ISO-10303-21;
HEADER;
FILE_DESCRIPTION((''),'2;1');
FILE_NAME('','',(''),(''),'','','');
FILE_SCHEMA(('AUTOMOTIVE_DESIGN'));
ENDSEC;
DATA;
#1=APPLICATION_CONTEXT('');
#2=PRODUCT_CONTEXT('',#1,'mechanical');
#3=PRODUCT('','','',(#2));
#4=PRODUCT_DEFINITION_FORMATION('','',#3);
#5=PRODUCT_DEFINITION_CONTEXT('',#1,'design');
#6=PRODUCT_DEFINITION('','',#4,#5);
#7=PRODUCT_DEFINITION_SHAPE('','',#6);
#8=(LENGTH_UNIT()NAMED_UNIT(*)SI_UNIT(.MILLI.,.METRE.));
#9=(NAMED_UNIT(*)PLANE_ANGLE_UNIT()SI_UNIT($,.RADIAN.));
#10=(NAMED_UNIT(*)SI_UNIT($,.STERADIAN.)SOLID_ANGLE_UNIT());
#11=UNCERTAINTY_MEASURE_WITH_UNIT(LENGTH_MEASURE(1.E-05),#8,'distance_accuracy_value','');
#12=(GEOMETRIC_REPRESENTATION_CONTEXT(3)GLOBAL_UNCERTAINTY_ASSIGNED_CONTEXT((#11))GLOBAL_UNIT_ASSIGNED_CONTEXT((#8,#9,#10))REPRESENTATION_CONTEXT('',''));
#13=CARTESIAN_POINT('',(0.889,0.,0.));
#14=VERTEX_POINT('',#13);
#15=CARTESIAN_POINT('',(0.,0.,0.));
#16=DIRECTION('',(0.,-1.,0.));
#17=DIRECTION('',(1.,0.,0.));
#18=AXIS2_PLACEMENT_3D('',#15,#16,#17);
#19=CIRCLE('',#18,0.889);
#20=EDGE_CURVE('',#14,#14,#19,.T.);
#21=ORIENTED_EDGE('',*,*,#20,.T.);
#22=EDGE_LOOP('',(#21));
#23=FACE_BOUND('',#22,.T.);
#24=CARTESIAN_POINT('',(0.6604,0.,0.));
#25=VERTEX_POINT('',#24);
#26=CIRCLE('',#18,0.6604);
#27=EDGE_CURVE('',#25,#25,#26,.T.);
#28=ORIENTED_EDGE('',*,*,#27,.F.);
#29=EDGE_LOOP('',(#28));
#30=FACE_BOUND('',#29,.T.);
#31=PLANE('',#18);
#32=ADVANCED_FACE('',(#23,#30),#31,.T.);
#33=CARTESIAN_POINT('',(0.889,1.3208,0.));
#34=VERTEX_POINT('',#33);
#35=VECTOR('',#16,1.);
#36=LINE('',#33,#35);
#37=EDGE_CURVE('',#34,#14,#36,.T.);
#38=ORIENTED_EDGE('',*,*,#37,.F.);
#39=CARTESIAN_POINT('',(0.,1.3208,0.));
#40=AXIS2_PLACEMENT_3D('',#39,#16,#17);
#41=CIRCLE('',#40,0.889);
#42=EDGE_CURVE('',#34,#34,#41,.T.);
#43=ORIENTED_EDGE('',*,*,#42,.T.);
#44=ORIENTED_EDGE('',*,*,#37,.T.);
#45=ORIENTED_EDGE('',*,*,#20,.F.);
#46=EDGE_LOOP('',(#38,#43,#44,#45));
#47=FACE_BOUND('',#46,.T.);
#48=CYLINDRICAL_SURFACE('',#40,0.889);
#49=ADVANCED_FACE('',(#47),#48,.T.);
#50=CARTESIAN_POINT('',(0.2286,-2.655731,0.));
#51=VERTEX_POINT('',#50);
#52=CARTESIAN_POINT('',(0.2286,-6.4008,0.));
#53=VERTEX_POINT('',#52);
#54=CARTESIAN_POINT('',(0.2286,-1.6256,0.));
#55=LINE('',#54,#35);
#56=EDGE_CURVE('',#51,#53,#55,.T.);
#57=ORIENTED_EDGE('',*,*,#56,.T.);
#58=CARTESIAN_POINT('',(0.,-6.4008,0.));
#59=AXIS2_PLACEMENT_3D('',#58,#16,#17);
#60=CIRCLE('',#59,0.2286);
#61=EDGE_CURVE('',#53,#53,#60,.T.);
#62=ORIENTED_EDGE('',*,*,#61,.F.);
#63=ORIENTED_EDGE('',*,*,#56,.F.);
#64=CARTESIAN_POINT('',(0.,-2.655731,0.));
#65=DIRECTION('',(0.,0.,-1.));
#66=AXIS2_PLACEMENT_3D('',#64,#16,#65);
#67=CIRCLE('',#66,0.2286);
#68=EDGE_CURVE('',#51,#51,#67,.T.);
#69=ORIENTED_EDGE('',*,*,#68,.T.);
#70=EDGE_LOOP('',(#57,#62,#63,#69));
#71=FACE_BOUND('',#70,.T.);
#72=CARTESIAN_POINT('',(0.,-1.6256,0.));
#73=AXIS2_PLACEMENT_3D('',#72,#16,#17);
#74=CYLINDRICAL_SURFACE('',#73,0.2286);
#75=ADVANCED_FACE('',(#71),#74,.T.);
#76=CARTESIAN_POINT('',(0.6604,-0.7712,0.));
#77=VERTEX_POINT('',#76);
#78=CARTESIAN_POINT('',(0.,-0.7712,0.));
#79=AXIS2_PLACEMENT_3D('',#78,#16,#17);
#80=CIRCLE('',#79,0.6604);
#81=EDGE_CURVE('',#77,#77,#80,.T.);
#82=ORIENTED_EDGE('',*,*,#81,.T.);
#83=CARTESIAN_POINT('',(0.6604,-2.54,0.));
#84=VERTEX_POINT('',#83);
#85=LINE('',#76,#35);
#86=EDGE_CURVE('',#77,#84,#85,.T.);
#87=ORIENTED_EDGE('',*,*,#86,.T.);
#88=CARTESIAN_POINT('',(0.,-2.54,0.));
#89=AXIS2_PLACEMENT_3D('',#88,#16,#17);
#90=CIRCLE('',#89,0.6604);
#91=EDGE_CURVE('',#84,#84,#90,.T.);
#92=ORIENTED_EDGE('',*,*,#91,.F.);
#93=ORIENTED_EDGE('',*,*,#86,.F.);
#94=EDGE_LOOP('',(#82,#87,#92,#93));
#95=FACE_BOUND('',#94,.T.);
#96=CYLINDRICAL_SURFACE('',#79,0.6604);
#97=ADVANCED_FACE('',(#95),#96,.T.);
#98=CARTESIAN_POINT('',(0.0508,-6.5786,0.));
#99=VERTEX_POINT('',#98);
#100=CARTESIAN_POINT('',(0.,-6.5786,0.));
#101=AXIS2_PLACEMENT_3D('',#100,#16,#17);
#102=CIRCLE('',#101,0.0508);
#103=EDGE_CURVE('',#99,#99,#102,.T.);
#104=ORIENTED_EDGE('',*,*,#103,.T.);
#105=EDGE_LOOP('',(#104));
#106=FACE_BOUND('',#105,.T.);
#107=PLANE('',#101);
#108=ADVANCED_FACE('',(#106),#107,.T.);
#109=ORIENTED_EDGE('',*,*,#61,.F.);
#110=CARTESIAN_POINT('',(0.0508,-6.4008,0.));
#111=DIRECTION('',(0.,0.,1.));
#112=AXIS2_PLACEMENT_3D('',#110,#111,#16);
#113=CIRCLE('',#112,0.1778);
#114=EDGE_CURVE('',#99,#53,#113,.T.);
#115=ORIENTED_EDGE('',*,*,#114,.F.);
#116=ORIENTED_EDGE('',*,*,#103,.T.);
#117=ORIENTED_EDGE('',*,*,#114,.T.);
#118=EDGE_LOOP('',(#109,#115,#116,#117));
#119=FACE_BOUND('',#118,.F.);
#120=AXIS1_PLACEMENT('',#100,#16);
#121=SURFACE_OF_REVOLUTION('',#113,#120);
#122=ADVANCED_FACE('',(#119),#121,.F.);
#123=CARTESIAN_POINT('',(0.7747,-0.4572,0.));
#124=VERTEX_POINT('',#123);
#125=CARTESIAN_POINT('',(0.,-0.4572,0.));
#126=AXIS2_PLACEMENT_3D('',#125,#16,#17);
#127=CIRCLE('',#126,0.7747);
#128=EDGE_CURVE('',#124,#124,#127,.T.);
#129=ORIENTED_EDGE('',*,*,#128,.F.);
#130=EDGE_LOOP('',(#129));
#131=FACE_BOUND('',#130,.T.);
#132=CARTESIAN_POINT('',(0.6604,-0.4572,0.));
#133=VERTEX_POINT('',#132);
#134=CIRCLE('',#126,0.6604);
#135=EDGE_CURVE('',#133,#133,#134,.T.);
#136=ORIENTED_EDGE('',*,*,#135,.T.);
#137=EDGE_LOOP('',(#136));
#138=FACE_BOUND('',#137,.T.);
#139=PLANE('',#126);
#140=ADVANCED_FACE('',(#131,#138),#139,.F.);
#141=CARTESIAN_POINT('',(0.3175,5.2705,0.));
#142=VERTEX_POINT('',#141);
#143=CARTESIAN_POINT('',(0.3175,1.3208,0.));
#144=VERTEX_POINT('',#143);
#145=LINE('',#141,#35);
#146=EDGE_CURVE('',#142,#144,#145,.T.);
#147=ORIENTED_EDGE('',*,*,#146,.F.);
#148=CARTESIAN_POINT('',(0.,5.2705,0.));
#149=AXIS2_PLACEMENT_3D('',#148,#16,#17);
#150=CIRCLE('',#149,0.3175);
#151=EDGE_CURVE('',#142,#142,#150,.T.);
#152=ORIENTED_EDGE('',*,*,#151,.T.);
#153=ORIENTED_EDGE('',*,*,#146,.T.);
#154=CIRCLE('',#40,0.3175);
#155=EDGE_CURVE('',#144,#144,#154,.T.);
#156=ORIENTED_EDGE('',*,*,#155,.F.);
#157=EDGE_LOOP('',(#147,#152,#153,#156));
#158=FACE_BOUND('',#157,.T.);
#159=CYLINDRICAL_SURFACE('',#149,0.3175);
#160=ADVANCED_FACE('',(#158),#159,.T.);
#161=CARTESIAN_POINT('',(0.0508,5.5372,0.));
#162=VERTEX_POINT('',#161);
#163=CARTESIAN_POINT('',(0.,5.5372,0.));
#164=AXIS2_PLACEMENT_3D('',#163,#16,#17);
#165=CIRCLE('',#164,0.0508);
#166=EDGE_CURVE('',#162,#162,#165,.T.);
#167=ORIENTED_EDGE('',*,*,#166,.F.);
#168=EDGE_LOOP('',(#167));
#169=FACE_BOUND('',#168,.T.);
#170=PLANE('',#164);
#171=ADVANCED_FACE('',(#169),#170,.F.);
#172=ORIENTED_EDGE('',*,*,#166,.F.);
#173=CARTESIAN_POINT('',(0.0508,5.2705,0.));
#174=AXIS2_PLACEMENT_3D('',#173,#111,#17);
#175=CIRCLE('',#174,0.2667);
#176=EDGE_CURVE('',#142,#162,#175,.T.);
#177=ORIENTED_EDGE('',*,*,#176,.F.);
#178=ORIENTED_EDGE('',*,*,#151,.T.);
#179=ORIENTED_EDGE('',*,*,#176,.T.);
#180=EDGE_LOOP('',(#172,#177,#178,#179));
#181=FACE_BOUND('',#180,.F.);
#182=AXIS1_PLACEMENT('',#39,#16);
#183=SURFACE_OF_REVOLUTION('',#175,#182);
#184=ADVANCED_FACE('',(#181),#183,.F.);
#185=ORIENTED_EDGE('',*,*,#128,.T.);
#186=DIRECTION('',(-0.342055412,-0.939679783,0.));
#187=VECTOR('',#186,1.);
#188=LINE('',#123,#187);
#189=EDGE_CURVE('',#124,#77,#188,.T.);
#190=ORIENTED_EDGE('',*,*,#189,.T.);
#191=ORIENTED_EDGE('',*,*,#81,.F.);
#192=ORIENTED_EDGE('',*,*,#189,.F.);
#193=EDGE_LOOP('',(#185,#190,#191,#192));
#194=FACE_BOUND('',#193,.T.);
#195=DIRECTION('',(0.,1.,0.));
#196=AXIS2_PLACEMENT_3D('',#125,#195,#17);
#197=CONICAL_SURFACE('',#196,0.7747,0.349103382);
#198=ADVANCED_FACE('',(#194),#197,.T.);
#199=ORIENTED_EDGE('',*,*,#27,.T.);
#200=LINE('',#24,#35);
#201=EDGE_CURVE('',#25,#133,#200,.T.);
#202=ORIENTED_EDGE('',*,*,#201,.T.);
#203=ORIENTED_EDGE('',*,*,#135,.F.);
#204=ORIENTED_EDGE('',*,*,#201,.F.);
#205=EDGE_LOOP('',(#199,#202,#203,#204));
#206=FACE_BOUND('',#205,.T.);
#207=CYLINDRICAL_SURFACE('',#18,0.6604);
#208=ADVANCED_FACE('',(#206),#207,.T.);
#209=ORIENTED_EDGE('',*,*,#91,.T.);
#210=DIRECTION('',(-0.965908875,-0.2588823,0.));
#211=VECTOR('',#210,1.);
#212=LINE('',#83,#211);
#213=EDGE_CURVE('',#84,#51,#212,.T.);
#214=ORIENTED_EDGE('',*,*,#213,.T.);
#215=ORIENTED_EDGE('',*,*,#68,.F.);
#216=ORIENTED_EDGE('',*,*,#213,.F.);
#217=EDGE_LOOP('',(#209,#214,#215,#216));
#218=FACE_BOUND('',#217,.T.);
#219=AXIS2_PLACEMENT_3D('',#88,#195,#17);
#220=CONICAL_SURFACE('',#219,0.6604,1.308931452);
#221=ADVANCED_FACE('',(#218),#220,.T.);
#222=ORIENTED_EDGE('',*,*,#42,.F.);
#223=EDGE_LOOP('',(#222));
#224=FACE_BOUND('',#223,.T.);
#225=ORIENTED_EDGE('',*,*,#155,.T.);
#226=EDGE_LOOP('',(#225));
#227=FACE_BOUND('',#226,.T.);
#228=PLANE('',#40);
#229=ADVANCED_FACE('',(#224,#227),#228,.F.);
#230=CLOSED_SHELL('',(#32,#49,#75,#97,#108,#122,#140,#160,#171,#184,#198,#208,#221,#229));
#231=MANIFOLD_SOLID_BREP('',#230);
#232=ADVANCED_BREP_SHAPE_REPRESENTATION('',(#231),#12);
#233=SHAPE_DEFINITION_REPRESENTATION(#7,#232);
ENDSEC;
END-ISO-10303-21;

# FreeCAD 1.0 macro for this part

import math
import FreeCAD as App
import Part
import Sketcher
Q = App.Units.Quantity

doc = App.newDocument("Part")
body = doc.addObject("PartDesign::Body", "Body")

# Sketch on XY plane
sketch1 = body.newObject("Sketcher::SketchObject", "Sketch")
sketch1.AttachmentSupport = (doc.getObject("XY_Plane"), [""])
sketch1.MapMode = "FlatFace"
sketch1.addGeometry([
    Part.LineSegment(App.Vector(0, 1.32, 0), App.Vector(0, -2.72, 0)),  # 0
    Part.LineSegment(App.Vector(0, -2.72, 0), App.Vector(0.66, -2.54, 0)),  # 1
    Part.LineSegment(App.Vector(0.66, -2.54, 0), App.Vector(0.66, -0.77, 0)),  # 2
    Part.LineSegment(App.Vector(0.66, -0.77, 0), App.Vector(0.77, -0.46, 0)),  # 3
    Part.LineSegment(App.Vector(0.77, -0.46, 0), App.Vector(0.66, -0.46, 0)),  # 4
    Part.LineSegment(App.Vector(0.66, -0.46, 0), App.Vector(0.66, 0, 0)),  # 5
    Part.LineSegment(App.Vector(0.66, 0, 0), App.Vector(0.89, 0, 0)),  # 6
    Part.LineSegment(App.Vector(0.89, 0, 0), App.Vector(0.89, 1.32, 0)),  # 7
    Part.LineSegment(App.Vector(0.89, 1.32, 0), App.Vector(0, 1.32, 0)),  # 8
], False)
sketch1.addConstraint([
    Sketcher.Constraint("Coincident", 0, 2, 1, 1),
    Sketcher.Constraint("Coincident", 1, 2, 2, 1),
    Sketcher.Constraint("Coincident", 2, 2, 3, 1),
    Sketcher.Constraint("Coincident", 3, 2, 4, 1),
    Sketcher.Constraint("Coincident", 4, 2, 5, 1),
    Sketcher.Constraint("Coincident", 5, 2, 6, 1),
    Sketcher.Constraint("Coincident", 6, 2, 7, 1),
    Sketcher.Constraint("Coincident", 7, 2, 8, 1),
    Sketcher.Constraint("Coincident", 8, 2, 0, 1),
    Sketcher.Constraint("Vertical", 0),
    Sketcher.Constraint("Vertical", 2),
    Sketcher.Constraint("Horizontal", 4),
    Sketcher.Constraint("Vertical", 5),
    Sketcher.Constraint("Horizontal", 6),
    Sketcher.Constraint("Vertical", 7),
    Sketcher.Constraint("Horizontal", 8),
    Sketcher.Constraint("PointOnObject", 0, 2, -2),
    Sketcher.Constraint("PointOnObject", 5, 2, -1),
    Sketcher.Constraint("Vertical", 2, 2, 4, 2),
    Sketcher.Constraint("DistanceY", 1, 2, -1, 1, Q("0.1 in")),
    Sketcher.Constraint("DistanceX", 6, 1, 6, 2, Q("0.009 in")),
    Sketcher.Constraint("DistanceX", 8, 2, 8, 1, Q("0.035 in")),
    Sketcher.Constraint("DistanceY", 5, 1, 5, 2, Q("0.018 in")),
    Sketcher.Constraint("DistanceY", 7, 1, 7, 2, Q("0.052 in")),
    Sketcher.Constraint("DistanceX", 4, 2, 4, 1, Q("0.0045 in")),
    Sketcher.Constraint("DistanceY", 0, 2, 0, 1, 4.0378),
    Sketcher.Constraint("DistanceY", 2, 1, 2, 2, 1.7688),
])
revolution = body.newObject("PartDesign::Revolution", "Revolution")
revolution.Profile = sketch1
revolution.ReferenceAxis = (sketch1, ["V_Axis"])
revolution.Angle = 360

# Sketch on XY plane
sketch2 = body.newObject("Sketcher::SketchObject", "Sketch001")
sketch2.AttachmentSupport = (doc.getObject("XY_Plane"), [""])
sketch2.MapMode = "FlatFace"
sketch2.addGeometry([
    Part.LineSegment(App.Vector(0, 5.54, 0), App.Vector(0, 1.32, 0)),  # 0
    Part.LineSegment(App.Vector(0, 1.32, 0), App.Vector(0.32, 1.32, 0)),  # 1
    Part.LineSegment(App.Vector(0.32, 1.32, 0), App.Vector(0.32, 5.27, 0)),  # 2
    Part.ArcOfCircle(Part.Circle(App.Vector(0.05, 5.27, 0), App.Vector(0, 0, 1), 0.27), math.radians(0), math.radians(90)),  # 3
    Part.LineSegment(App.Vector(0.05, 5.54, 0), App.Vector(0, 5.54, 0)),  # 4
], False)
sketch2.addConstraint([
    Sketcher.Constraint("Coincident", 0, 2, 1, 1),
    Sketcher.Constraint("Coincident", 1, 2, 2, 1),
    Sketcher.Constraint("Tangent", 2, 2, 3, 1),
    Sketcher.Constraint("Tangent", 3, 2, 4, 1),
    Sketcher.Constraint("Coincident", 4, 2, 0, 1),
    Sketcher.Constraint("Vertical", 0),
    Sketcher.Constraint("Horizontal", 1),
    Sketcher.Constraint("Vertical", 2),
    Sketcher.Constraint("Horizontal", 4),
    Sketcher.Constraint("PointOnObject", 0, 2, -2),
    Sketcher.Constraint("Radius", 3, Q("0.0105 in")),
    Sketcher.Constraint("DistanceX", 4, 2, 4, 1, Q("0.002 in")),
    Sketcher.Constraint("DistanceY", 0, 2, 0, 1, Q("0.166 in")),
    Sketcher.Constraint("DistanceY", -1, 1, 0, 2, Q("0.052 in")),
])
revolution2 = body.newObject("PartDesign::Revolution", "Revolution001")
revolution2.Profile = sketch2
revolution2.ReferenceAxis = (sketch2, ["V_Axis"])
revolution2.Angle = 360

# Sketch on XY plane
sketch3 = body.newObject("Sketcher::SketchObject", "Sketch002")
sketch3.AttachmentSupport = (doc.getObject("XY_Plane"), [""])
sketch3.MapMode = "FlatFace"
sketch3.addGeometry([
    Part.LineSegment(App.Vector(0, -1.63, 0), App.Vector(0, -6.58, 0)),  # 0
    Part.LineSegment(App.Vector(0, -6.58, 0), App.Vector(0.05, -6.58, 0)),  # 1
    Part.ArcOfCircle(Part.Circle(App.Vector(0.05, -6.4, 0), App.Vector(0, 0, 1), 0.18), math.radians(-90), math.radians(0)),  # 2
    Part.LineSegment(App.Vector(0.23, -6.4, 0), App.Vector(0.23, -1.63, 0)),  # 3
    Part.LineSegment(App.Vector(0.23, -1.63, 0), App.Vector(0, -1.63, 0)),  # 4
], False)
sketch3.addConstraint([
    Sketcher.Constraint("Coincident", 0, 2, 1, 1),
    Sketcher.Constraint("Tangent", 1, 2, 2, 1),
    Sketcher.Constraint("Tangent", 2, 2, 3, 1),
    Sketcher.Constraint("Coincident", 3, 2, 4, 1),
    Sketcher.Constraint("Coincident", 4, 2, 0, 1),
    Sketcher.Constraint("Vertical", 0),
    Sketcher.Constraint("Horizontal", 1),
    Sketcher.Constraint("Vertical", 3),
    Sketcher.Constraint("Horizontal", 4),
    Sketcher.Constraint("PointOnObject", 0, 2, -2),
    Sketcher.Constraint("Radius", 2, Q("0.007 in")),
    Sketcher.Constraint("DistanceX", 1, 1, 1, 2, Q("0.002 in")),
    Sketcher.Constraint("DistanceY", 0, 2, 0, 1, Q("0.195 in")),
    Sketcher.Constraint("DistanceY", 2, 3, -1, 1, Q("0.252 in")),
])
revolution3 = body.newObject("PartDesign::Revolution", "Revolution002")
revolution3.Profile = sketch3
revolution3.ReferenceAxis = (sketch3, ["V_Axis"])
revolution3.Angle = 360

doc.recompute()
